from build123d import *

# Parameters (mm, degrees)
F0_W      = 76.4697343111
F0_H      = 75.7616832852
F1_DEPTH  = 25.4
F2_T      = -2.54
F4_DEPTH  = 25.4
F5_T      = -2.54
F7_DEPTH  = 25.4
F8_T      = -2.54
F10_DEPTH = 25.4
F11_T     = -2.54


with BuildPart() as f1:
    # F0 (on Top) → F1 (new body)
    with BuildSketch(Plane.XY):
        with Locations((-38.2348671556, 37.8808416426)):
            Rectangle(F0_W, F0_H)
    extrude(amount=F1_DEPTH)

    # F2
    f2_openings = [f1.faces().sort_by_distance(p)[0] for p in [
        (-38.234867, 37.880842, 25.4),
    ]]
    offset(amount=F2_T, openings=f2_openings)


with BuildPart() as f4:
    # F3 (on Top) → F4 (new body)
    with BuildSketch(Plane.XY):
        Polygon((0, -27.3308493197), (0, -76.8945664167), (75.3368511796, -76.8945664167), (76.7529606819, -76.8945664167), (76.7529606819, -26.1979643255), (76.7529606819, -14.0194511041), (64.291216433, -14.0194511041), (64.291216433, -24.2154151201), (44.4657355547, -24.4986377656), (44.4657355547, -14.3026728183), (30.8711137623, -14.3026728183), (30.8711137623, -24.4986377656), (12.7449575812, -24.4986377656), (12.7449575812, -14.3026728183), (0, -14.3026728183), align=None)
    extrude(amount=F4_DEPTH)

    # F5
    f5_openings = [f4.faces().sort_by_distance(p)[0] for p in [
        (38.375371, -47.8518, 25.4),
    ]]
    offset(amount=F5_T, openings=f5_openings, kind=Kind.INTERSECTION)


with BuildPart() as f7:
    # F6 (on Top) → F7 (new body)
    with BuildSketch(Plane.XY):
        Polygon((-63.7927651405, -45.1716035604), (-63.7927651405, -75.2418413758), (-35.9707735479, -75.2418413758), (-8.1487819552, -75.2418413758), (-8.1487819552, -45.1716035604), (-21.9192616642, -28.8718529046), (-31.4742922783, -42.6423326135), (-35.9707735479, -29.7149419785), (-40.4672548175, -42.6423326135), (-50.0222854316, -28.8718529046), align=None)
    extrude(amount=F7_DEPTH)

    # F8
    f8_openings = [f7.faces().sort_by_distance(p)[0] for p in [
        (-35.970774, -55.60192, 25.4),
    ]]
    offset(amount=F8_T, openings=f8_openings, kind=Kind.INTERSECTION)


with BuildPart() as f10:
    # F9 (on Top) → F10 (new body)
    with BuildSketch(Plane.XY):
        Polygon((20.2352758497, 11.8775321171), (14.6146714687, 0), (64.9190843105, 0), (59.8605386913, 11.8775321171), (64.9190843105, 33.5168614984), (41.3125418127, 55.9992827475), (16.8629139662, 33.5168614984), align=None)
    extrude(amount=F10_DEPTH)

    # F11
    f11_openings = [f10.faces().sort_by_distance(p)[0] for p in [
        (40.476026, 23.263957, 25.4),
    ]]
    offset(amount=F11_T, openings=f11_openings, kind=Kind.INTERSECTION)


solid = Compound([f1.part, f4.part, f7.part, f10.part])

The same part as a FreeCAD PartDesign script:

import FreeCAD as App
import Part
import Sketcher
Q = App.Units.Quantity


def faces_at(feature, points):
    """Names of the faces that lie closest to the given points."""
    faces = feature.Shape.Faces
    near = lambda p: min(range(len(faces)), key=lambda i: faces[i].distToShape(Part.Vertex(*p))[0])
    return sorted({f"Face{near(p) + 1}" for p in points})

doc = App.newDocument("Part")
body = doc.addObject("PartDesign::Body", "Body")

# Sketch on XY plane
sketch1 = body.newObject("Sketcher::SketchObject", "Sketch")
sketch1.AttachmentSupport = (doc.getObject("XY_Plane"), [""])
sketch1.MapMode = "FlatFace"
sketch1.addGeometry(Part.LineSegment(App.Vector(-76, 76, 0), App.Vector(-76, 0, 0)), False)
sketch1.addGeometry(Part.LineSegment(App.Vector(-76, 0, 0), App.Vector(0, 0, 0)), False)
sketch1.addGeometry(Part.LineSegment(App.Vector(0, 0, 0), App.Vector(0, 76, 0)), False)
sketch1.addGeometry(Part.LineSegment(App.Vector(0, 76, 0), App.Vector(-76, 76, 0)), False)
sketch1.addConstraint(Sketcher.Constraint("Coincident", 0, 2, 1, 1))
sketch1.addConstraint(Sketcher.Constraint("Coincident", 1, 2, 2, 1))
sketch1.addConstraint(Sketcher.Constraint("Coincident", 2, 2, 3, 1))
sketch1.addConstraint(Sketcher.Constraint("Coincident", 3, 2, 0, 1))
sketch1.addConstraint(Sketcher.Constraint("Vertical", 0))
sketch1.addConstraint(Sketcher.Constraint("Horizontal", 1))
sketch1.addConstraint(Sketcher.Constraint("Vertical", 2))
sketch1.addConstraint(Sketcher.Constraint("Horizontal", 3))
sketch1.addConstraint(Sketcher.Constraint("Coincident", 1, 2, -1, 1))
sketch1.addConstraint(Sketcher.Constraint("DistanceX", 1, 1, 1, 2, 76.469734))
sketch1.addConstraint(Sketcher.Constraint("DistanceY", 0, 2, 0, 1, 75.761683))
pad1 = body.newObject("PartDesign::Pad", "Pad")
pad1.Profile = sketch1
pad1.Length = Q("1 in")
doc.recompute()

thickness = body.newObject("PartDesign::Thickness", "Thickness")
thickness.Base = (pad1, faces_at(pad1, [(-38.235, 37.881, 25.4)]))
thickness.Value = Q("0.1 in")
thickness.Reversed = True
thickness.Join = "Arc"
body2 = doc.addObject("PartDesign::Body", "Body001")

# Sketch on XY plane
sketch2 = body2.newObject("Sketcher::SketchObject", "Sketch001")
sketch2.AttachmentSupport = (doc.getObject("XY_Plane001"), [""])
sketch2.MapMode = "FlatFace"
sketch2.addGeometry(Part.LineSegment(App.Vector(0, -77, 0), App.Vector(77, -77, 0)), False)
sketch2.addGeometry(Part.LineSegment(App.Vector(77, -77, 0), App.Vector(77, -14, 0)), False)
sketch2.addGeometry(Part.LineSegment(App.Vector(77, -14, 0), App.Vector(64, -14, 0)), False)
sketch2.addGeometry(Part.LineSegment(App.Vector(64, -14, 0), App.Vector(64, -24, 0)), False)
sketch2.addGeometry(Part.LineSegment(App.Vector(64, -24, 0), App.Vector(44, -24, 0)), False)
sketch2.addGeometry(Part.LineSegment(App.Vector(44, -24, 0), App.Vector(44, -14, 0)), False)
sketch2.addGeometry(Part.LineSegment(App.Vector(44, -14, 0), App.Vector(31, -14, 0)), False)
sketch2.addGeometry(Part.LineSegment(App.Vector(31, -14, 0), App.Vector(31, -24, 0)), False)
sketch2.addGeometry(Part.LineSegment(App.Vector(31, -24, 0), App.Vector(13, -24, 0)), False)
sketch2.addGeometry(Part.LineSegment(App.Vector(13, -24, 0), App.Vector(13, -14, 0)), False)
sketch2.addGeometry(Part.LineSegment(App.Vector(13, -14, 0), App.Vector(0, -14, 0)), False)
sketch2.addGeometry(Part.LineSegment(App.Vector(0, -14, 0), App.Vector(0, -77, 0)), False)
sketch2.addConstraint(Sketcher.Constraint("Coincident", 0, 2, 1, 1))
sketch2.addConstraint(Sketcher.Constraint("Coincident", 1, 2, 2, 1))
sketch2.addConstraint(Sketcher.Constraint("Coincident", 2, 2, 3, 1))
sketch2.addConstraint(Sketcher.Constraint("Coincident", 3, 2, 4, 1))
sketch2.addConstraint(Sketcher.Constraint("Coincident", 4, 2, 5, 1))
sketch2.addConstraint(Sketcher.Constraint("Coincident", 5, 2, 6, 1))
sketch2.addConstraint(Sketcher.Constraint("Coincident", 6, 2, 7, 1))
sketch2.addConstraint(Sketcher.Constraint("Coincident", 7, 2, 8, 1))
sketch2.addConstraint(Sketcher.Constraint("Coincident", 8, 2, 9, 1))
sketch2.addConstraint(Sketcher.Constraint("Coincident", 9, 2, 10, 1))
sketch2.addConstraint(Sketcher.Constraint("Coincident", 10, 2, 11, 1))
sketch2.addConstraint(Sketcher.Constraint("Coincident", 11, 2, 0, 1))
sketch2.addConstraint(Sketcher.Constraint("Horizontal", 0))
sketch2.addConstraint(Sketcher.Constraint("Vertical", 1))
sketch2.addConstraint(Sketcher.Constraint("Horizontal", 2))
sketch2.addConstraint(Sketcher.Constraint("Vertical", 3))
sketch2.addConstraint(Sketcher.Constraint("Vertical", 5))
sketch2.addConstraint(Sketcher.Constraint("Horizontal", 6))
sketch2.addConstraint(Sketcher.Constraint("Vertical", 7))
sketch2.addConstraint(Sketcher.Constraint("Horizontal", 8))
sketch2.addConstraint(Sketcher.Constraint("Vertical", 9))
sketch2.addConstraint(Sketcher.Constraint("Horizontal", 10))
sketch2.addConstraint(Sketcher.Constraint("Vertical", 11))
sketch2.addConstraint(Sketcher.Constraint("PointOnObject", 10, 2, -2))
sketch2.addConstraint(Sketcher.Constraint("Horizontal", 4, 2, 7, 2))
sketch2.addConstraint(Sketcher.Constraint("Horizontal", 6, 2, 9, 2))
sketch2.addConstraint(Sketcher.Constraint("Equal", 3, 5))
sketch2.addConstraint(Sketcher.Constraint("DistanceX", 0, 1, 0, 2, 76.752961))
sketch2.addConstraint(Sketcher.Constraint("DistanceX", 6, 2, 6, 1, 13.594622))
sketch2.addConstraint(Sketcher.Constraint("DistanceX", 2, 2, 2, 1, 12.461744))
sketch2.addConstraint(Sketcher.Constraint("DistanceX", 8, 2, 8, 1, 18.126156))
sketch2.addConstraint(Sketcher.Constraint("DistanceX", 10, 2, 10, 1, 12.744958))
sketch2.addConstraint(Sketcher.Constraint("DistanceY", 1, 1, 1, 2, 62.875115))
sketch2.addConstraint(Sketcher.Constraint("DistanceY", 3, 2, 3, 1, 10.195964))
sketch2.addConstraint(Sketcher.Constraint("DistanceY", 11, 2, 11, 1, 62.591894))
sketch2.addConstraint(Sketcher.Constraint("DistanceY", 1, 2, -1, 1, 14.019451))
pad2 = body2.newObject("PartDesign::Pad", "Pad001")
pad2.Profile = sketch2
pad2.Length = Q("1 in")
doc.recompute()

thickness2 = body2.newObject("PartDesign::Thickness", "Thickness001")
thickness2.Base = (pad2, faces_at(pad2, [(38.376, -45.457, 25.4)]))
thickness2.Value = Q("0.1 in")
thickness2.Reversed = True
thickness2.Join = "Intersection"
body3 = doc.addObject("PartDesign::Body", "Body002")

# Sketch on XY plane
sketch3 = body3.newObject("Sketcher::SketchObject", "Sketch002")
sketch3.AttachmentSupport = (doc.getObject("XY_Plane002"), [""])
sketch3.MapMode = "FlatFace"
sketch3.addGeometry(Part.LineSegment(App.Vector(-64, -45, 0), App.Vector(-64, -75, 0)), False)
sketch3.addGeometry(Part.LineSegment(App.Vector(-64, -75, 0), App.Vector(-8, -75, 0)), False)
sketch3.addGeometry(Part.LineSegment(App.Vector(-8, -75, 0), App.Vector(-8, -45, 0)), False)
sketch3.addGeometry(Part.LineSegment(App.Vector(-8, -45, 0), App.Vector(-22, -29, 0)), False)
sketch3.addGeometry(Part.LineSegment(App.Vector(-22, -29, 0), App.Vector(-31, -43, 0)), False)
sketch3.addGeometry(Part.LineSegment(App.Vector(-31, -43, 0), App.Vector(-36, -30, 0)), False)
sketch3.addGeometry(Part.LineSegment(App.Vector(-36, -30, 0), App.Vector(-40, -43, 0)), False)
sketch3.addGeometry(Part.LineSegment(App.Vector(-40, -43, 0), App.Vector(-50, -29, 0)), False)
sketch3.addGeometry(Part.LineSegment(App.Vector(-50, -29, 0), App.Vector(-64, -45, 0)), False)
sketch3.addConstraint(Sketcher.Constraint("Coincident", 0, 2, 1, 1))
sketch3.addConstraint(Sketcher.Constraint("Coincident", 1, 2, 2, 1))
sketch3.addConstraint(Sketcher.Constraint("Coincident", 2, 2, 3, 1))
sketch3.addConstraint(Sketcher.Constraint("Coincident", 3, 2, 4, 1))
sketch3.addConstraint(Sketcher.Constraint("Coincident", 4, 2, 5, 1))
sketch3.addConstraint(Sketcher.Constraint("Coincident", 5, 2, 6, 1))
sketch3.addConstraint(Sketcher.Constraint("Coincident", 6, 2, 7, 1))
sketch3.addConstraint(Sketcher.Constraint("Coincident", 7, 2, 8, 1))
sketch3.addConstraint(Sketcher.Constraint("Coincident", 8, 2, 0, 1))
sketch3.addConstraint(Sketcher.Constraint("Vertical", 0))
sketch3.addConstraint(Sketcher.Constraint("Horizontal", 1))
sketch3.addConstraint(Sketcher.Constraint("Vertical", 2))
sketch3.addConstraint(Sketcher.Constraint("Horizontal", 4, 2, 6, 2))
sketch3.addConstraint(Sketcher.Constraint("Horizontal", 3, 2, 7, 2))
sketch3.addConstraint(Sketcher.Constraint("Horizontal", 2, 2, 8, 2))
sketch3.addConstraint(Sketcher.Constraint("Equal", 5, 6))
sketch3.addConstraint(Sketcher.Constraint("Equal", 4, 7))
sketch3.addConstraint(Sketcher.Constraint("Equal", 3, 8))
sketch3.addConstraint(Sketcher.Constraint("DistanceY", 0, 2, 5, 2, 45.526899))
sketch3.addConstraint(Sketcher.Constraint("Distance", 4, 16.760809))
sketch3.addConstraint(Sketcher.Constraint("DistanceX", 1, 1, 1, 2, 55.643983))
sketch3.addConstraint(Sketcher.Constraint("DistanceY", 0, 2, 0, 1, 30.070238))
sketch3.addConstraint(Sketcher.Constraint("DistanceY", 0, 2, -1, 1, 75.241841))
sketch3.addConstraint(Sketcher.Constraint("DistanceX", 1, 2, -1, 1, 8.148782))
sketch3.addConstraint(Sketcher.Constraint("DistanceX", 3, 2, -1, 1, 21.919262))
sketch3.addConstraint(Sketcher.Constraint("DistanceY", 2, 2, 3, 2, 16.299751))
sketch3.addConstraint(Sketcher.Constraint("DistanceX", 4, 2, 3, 2, 9.555031))
pad3 = body3.newObject("PartDesign::Pad", "Pad002")
pad3.Profile = sketch3
pad3.Length = Q("1 in")
doc.recompute()

thickness3 = body3.newObject("PartDesign::Thickness", "Thickness002")
thickness3.Base = (pad3, faces_at(pad3, [(-35.971, -52.057, 25.4)]))
thickness3.Value = Q("0.1 in")
thickness3.Reversed = True
thickness3.Join = "Intersection"
body4 = doc.addObject("PartDesign::Body", "Body003")

# Sketch on XY plane
sketch4 = body4.newObject("Sketcher::SketchObject", "Sketch003")
sketch4.AttachmentSupport = (doc.getObject("XY_Plane003"), [""])
sketch4.MapMode = "FlatFace"
sketch4.addGeometry(Part.LineSegment(App.Vector(20, 12, 0), App.Vector(15, 0, 0)), False)
sketch4.addGeometry(Part.LineSegment(App.Vector(15, 0, 0), App.Vector(65, 0, 0)), False)
sketch4.addGeometry(Part.LineSegment(App.Vector(65, 0, 0), App.Vector(60, 12, 0)), False)
sketch4.addGeometry(Part.LineSegment(App.Vector(60, 12, 0), App.Vector(65, 34, 0)), False)
sketch4.addGeometry(Part.LineSegment(App.Vector(65, 34, 0), App.Vector(41, 56, 0)), False)
sketch4.addGeometry(Part.LineSegment(App.Vector(41, 56, 0), App.Vector(17, 34, 0)), False)
sketch4.addGeometry(Part.LineSegment(App.Vector(17, 34, 0), App.Vector(20, 12, 0)), False)
sketch4.addConstraint(Sketcher.Constraint("Coincident", 0, 2, 1, 1))
sketch4.addConstraint(Sketcher.Constraint("Coincident", 1, 2, 2, 1))
sketch4.addConstraint(Sketcher.Constraint("Coincident", 2, 2, 3, 1))
sketch4.addConstraint(Sketcher.Constraint("Coincident", 3, 2, 4, 1))
sketch4.addConstraint(Sketcher.Constraint("Coincident", 4, 2, 5, 1))
sketch4.addConstraint(Sketcher.Constraint("Coincident", 5, 2, 6, 1))
sketch4.addConstraint(Sketcher.Constraint("Coincident", 6, 2, 0, 1))
sketch4.addConstraint(Sketcher.Constraint("Horizontal", 1))
sketch4.addConstraint(Sketcher.Constraint("PointOnObject", 0, 2, -1))
sketch4.addConstraint(Sketcher.Constraint("Horizontal", 3, 2, 5, 2))
sketch4.addConstraint(Sketcher.Constraint("Horizontal", 2, 2, 6, 2))
sketch4.addConstraint(Sketcher.Constraint("Vertical", 1, 2, 3, 2))
sketch4.addConstraint(Sketcher.Constraint("Distance", 0, 13.14028))
sketch4.addConstraint(Sketcher.Constraint("Distance", 4, 32.599511))
sketch4.addConstraint(Sketcher.Constraint("Distance", 5, 33.215111))
sketch4.addConstraint(Sketcher.Constraint("DistanceX", 1, 1, 1, 2, 50.304413))
sketch4.addConstraint(Sketcher.Constraint("DistanceX", -1, 1, 0, 2, 14.614671))
sketch4.addConstraint(Sketcher.Constraint("DistanceX", -1, 1, 2, 2, 59.860539))
sketch4.addConstraint(Sketcher.Constraint("DistanceY", -1, 1, 3, 2, 33.516861))
sketch4.addConstraint(Sketcher.Constraint("DistanceX", -1, 1, 4, 2, 41.312542))
sketch4.addConstraint(Sketcher.Constraint("DistanceY", 2, 2, 3, 2, 21.639329))
pad4 = body4.newObject("PartDesign::Pad", "Pad003")
pad4.Profile = sketch4
pad4.Length = Q("1 in")
doc.recompute()

thickness4 = body4.newObject("PartDesign::Thickness", "Thickness003")
thickness4.Base = (pad4, faces_at(pad4, [(39.767, 28, 25.4)]))
thickness4.Value = Q("0.1 in")
thickness4.Reversed = True
thickness4.Join = "Intersection"

doc.recompute()
